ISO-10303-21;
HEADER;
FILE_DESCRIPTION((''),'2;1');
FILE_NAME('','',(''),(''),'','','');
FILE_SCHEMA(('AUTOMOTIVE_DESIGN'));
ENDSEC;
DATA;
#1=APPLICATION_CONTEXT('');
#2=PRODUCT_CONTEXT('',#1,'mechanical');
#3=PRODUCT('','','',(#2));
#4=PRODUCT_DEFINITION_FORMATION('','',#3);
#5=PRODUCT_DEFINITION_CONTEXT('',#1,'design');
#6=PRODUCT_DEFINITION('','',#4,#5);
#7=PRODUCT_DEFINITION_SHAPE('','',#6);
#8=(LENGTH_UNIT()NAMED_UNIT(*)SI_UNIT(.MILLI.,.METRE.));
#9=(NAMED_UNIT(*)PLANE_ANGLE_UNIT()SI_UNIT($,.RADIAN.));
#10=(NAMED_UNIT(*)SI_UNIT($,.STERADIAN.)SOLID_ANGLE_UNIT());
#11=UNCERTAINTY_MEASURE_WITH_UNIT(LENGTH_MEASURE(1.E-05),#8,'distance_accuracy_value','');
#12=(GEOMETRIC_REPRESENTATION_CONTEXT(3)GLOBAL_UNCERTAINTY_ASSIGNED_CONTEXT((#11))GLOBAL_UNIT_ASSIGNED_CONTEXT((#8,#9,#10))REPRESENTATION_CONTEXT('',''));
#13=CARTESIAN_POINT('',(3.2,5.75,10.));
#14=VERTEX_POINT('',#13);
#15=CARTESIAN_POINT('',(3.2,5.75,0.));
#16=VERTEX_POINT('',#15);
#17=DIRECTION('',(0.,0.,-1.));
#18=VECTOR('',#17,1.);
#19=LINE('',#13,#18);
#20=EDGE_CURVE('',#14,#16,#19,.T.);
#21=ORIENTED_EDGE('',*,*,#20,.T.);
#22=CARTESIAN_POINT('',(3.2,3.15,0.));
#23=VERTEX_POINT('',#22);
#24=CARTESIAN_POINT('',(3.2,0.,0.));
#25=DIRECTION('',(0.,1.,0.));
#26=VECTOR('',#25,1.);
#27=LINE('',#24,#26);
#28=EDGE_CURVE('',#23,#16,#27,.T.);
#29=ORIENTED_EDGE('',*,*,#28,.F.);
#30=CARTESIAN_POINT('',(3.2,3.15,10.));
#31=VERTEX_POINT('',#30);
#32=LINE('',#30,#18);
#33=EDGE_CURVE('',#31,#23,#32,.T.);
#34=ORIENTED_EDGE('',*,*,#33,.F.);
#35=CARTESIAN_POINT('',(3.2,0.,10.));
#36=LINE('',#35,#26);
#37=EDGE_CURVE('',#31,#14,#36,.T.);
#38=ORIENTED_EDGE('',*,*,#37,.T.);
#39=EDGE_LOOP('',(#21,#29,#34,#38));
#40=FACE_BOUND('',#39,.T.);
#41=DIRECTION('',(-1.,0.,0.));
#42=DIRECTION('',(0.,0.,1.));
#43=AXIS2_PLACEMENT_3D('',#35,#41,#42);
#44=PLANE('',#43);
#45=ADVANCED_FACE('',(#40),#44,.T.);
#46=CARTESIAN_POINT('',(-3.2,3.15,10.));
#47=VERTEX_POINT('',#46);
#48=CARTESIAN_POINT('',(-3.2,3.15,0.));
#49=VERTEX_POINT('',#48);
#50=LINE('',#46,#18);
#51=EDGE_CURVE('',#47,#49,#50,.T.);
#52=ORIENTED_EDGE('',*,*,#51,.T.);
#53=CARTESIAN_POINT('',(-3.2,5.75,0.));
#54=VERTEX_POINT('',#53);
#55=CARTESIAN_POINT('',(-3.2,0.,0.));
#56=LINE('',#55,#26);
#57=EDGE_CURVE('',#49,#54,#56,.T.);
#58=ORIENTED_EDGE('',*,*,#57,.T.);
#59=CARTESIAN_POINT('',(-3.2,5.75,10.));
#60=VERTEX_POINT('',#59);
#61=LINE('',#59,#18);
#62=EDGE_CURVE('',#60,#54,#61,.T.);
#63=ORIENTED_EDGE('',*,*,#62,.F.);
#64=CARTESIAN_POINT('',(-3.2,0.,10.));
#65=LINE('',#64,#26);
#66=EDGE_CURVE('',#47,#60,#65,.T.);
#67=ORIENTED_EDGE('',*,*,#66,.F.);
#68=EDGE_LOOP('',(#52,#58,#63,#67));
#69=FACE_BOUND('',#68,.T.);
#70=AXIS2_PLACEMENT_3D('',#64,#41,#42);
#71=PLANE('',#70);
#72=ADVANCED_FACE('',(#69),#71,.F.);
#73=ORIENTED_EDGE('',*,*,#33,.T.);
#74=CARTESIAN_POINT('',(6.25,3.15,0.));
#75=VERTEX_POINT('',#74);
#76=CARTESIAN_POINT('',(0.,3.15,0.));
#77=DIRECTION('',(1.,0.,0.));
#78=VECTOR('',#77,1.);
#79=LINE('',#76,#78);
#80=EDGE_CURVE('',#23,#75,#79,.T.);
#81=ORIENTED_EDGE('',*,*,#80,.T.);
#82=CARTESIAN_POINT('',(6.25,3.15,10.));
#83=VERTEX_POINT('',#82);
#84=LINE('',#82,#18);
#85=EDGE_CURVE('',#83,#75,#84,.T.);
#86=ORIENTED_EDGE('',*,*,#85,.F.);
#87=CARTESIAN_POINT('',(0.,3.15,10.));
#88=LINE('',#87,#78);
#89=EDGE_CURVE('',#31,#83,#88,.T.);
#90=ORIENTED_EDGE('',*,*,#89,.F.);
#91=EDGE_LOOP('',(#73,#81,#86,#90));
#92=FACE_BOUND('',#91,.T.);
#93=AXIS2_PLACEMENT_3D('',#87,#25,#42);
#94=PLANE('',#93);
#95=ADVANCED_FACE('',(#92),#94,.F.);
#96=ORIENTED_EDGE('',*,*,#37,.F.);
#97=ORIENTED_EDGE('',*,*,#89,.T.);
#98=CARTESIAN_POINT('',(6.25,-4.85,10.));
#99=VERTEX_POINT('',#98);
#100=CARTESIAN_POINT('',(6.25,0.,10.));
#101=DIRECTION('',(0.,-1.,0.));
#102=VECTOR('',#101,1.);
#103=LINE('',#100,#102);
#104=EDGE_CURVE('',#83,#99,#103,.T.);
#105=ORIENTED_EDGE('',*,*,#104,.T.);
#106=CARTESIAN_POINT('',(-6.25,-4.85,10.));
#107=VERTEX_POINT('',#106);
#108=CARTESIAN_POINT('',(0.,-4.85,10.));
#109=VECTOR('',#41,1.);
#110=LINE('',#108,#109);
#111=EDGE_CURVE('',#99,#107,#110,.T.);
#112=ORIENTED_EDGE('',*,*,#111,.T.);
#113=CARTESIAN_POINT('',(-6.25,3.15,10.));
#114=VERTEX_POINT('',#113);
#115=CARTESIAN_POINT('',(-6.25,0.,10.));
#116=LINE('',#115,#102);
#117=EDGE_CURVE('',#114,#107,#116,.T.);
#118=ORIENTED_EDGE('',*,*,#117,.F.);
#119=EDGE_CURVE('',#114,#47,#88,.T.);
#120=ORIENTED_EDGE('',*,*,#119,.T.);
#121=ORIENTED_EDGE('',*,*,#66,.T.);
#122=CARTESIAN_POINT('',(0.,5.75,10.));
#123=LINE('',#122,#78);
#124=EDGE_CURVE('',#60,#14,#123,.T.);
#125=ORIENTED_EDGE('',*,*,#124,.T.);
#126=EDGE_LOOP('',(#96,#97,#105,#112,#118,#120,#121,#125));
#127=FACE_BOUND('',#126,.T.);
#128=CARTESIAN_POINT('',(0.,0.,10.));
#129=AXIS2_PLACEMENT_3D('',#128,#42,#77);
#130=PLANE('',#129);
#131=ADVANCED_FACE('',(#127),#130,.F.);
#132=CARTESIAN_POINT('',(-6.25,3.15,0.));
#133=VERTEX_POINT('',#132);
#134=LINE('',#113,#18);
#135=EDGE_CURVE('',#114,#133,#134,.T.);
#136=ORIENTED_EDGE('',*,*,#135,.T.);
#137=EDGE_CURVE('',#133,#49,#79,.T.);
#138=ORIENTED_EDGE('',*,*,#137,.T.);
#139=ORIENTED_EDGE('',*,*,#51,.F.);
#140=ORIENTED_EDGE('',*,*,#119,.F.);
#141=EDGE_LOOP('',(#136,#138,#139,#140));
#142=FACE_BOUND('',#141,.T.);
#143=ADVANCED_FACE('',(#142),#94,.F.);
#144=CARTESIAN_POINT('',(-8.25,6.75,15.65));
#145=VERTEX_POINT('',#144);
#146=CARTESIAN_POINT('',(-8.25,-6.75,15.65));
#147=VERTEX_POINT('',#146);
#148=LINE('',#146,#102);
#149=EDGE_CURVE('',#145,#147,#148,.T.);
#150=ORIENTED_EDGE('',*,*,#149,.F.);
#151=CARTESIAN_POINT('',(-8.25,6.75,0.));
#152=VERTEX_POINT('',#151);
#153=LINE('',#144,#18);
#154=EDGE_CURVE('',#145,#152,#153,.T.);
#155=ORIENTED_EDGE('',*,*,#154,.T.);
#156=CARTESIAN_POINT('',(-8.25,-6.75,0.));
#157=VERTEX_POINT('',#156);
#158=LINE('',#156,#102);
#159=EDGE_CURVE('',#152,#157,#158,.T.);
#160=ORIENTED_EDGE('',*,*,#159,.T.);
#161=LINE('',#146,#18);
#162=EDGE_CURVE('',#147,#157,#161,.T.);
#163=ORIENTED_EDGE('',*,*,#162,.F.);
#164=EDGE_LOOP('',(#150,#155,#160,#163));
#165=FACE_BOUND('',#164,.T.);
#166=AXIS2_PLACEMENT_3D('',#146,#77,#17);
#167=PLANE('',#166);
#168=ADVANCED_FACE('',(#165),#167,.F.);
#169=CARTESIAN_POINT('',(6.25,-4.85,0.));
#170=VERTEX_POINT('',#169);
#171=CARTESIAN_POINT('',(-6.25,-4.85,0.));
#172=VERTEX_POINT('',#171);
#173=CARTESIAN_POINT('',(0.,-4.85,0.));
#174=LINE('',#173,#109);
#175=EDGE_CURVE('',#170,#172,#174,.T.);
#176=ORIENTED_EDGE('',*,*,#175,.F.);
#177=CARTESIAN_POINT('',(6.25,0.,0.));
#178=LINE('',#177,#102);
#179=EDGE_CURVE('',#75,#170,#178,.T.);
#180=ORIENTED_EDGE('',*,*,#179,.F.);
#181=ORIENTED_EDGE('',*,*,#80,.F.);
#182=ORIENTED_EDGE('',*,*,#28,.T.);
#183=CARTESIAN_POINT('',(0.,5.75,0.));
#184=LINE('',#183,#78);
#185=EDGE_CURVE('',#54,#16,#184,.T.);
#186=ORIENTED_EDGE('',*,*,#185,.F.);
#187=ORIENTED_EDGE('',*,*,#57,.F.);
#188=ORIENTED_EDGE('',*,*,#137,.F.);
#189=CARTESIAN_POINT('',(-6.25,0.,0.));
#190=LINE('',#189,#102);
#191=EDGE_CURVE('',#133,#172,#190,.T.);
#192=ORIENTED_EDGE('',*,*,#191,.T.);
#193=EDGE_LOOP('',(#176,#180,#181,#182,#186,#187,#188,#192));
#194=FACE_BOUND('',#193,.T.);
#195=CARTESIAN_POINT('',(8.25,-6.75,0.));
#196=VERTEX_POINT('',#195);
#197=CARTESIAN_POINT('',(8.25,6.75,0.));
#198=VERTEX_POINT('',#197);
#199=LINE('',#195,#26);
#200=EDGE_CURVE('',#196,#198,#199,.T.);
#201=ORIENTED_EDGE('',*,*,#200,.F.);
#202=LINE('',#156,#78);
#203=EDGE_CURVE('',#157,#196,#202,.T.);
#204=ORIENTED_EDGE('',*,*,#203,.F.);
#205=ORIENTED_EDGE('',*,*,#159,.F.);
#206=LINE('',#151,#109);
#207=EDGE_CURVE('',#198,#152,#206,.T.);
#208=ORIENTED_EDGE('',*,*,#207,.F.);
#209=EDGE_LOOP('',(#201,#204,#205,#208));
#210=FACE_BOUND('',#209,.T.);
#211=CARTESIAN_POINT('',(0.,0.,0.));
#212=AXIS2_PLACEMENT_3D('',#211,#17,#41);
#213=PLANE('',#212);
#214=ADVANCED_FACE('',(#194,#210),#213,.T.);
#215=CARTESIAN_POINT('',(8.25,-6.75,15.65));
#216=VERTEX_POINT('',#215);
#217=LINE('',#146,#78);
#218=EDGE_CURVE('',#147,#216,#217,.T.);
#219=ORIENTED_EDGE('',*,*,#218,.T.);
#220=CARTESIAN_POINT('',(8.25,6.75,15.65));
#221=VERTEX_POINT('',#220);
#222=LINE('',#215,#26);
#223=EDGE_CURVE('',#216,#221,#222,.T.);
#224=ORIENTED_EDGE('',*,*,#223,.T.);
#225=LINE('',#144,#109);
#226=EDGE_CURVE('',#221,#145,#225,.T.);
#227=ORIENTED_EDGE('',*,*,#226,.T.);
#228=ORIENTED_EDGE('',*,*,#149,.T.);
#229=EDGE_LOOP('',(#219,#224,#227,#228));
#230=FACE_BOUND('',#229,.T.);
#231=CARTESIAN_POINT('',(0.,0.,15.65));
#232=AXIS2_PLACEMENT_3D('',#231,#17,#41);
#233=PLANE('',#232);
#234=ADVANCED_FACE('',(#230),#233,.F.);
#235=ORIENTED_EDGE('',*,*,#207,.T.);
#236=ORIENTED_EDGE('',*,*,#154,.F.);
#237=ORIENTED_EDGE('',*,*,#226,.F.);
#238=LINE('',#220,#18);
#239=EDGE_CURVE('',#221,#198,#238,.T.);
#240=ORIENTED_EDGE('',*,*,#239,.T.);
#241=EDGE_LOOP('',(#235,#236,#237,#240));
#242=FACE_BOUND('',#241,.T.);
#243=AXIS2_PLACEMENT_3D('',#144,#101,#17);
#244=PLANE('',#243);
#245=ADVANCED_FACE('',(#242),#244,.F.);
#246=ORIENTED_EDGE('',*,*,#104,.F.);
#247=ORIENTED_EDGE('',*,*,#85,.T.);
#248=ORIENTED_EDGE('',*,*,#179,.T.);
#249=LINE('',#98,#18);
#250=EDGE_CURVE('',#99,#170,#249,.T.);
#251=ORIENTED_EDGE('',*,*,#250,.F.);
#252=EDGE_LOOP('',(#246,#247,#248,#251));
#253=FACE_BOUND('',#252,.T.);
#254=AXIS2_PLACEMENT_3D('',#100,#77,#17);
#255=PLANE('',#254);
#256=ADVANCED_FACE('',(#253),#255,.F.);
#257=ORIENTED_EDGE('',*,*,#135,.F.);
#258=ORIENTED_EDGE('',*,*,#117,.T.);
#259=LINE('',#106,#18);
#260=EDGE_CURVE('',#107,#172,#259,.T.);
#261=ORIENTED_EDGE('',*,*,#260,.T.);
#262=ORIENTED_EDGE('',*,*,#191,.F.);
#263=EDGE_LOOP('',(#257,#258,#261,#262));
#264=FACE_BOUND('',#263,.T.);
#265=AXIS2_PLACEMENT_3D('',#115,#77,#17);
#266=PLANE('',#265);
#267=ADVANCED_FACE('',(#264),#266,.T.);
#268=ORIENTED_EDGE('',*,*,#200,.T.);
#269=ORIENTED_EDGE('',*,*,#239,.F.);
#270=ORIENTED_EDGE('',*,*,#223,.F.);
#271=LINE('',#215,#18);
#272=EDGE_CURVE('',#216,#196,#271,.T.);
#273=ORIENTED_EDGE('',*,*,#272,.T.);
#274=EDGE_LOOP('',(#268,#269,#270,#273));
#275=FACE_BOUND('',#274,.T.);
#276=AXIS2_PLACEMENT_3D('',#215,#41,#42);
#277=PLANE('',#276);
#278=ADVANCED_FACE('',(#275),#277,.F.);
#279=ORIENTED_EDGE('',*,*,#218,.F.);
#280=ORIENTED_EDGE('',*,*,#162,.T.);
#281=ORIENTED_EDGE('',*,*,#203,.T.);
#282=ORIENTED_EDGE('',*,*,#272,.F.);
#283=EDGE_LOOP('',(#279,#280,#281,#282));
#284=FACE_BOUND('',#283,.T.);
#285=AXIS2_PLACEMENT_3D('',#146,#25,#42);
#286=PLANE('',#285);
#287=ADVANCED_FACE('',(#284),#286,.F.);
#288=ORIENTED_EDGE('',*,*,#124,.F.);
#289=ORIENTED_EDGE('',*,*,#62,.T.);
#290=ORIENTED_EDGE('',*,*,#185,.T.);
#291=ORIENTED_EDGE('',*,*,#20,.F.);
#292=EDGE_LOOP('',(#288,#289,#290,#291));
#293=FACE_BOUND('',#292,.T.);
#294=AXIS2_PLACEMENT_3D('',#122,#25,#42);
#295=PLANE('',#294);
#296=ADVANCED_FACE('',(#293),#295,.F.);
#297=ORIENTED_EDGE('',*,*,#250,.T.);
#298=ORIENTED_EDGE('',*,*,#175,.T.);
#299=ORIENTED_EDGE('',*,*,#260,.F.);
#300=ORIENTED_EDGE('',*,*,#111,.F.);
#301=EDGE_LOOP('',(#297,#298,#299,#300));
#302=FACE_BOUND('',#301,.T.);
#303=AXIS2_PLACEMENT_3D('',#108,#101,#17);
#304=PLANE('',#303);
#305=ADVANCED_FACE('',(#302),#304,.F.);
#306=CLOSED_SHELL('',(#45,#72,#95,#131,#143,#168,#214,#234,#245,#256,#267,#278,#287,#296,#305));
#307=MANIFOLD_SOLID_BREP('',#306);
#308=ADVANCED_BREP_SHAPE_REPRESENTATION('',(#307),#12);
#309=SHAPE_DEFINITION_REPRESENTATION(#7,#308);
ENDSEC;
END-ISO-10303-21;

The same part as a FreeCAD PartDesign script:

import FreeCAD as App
import Part
import Sketcher
from FreeCAD import Vector

doc = App.newDocument("Part")
body = doc.addObject("PartDesign::Body", "Body")

# Sketch on XY plane
sketch1 = body.newObject("Sketcher::SketchObject", "Sketch")
sketch1.AttachmentSupport = (doc.getObject("XY_Plane"), [""])
sketch1.MapMode = "FlatFace"
sketch1.addGeometry(Part.LineSegment(Vector(-8.25, 6.75, 0), Vector(-8.25, -6.75, 0)), False)
sketch1.addGeometry(Part.LineSegment(Vector(-8.25, -6.75, 0), Vector(8.25, -6.75, 0)), False)
sketch1.addGeometry(Part.LineSegment(Vector(8.25, -6.75, 0), Vector(8.25, 6.75, 0)), False)
sketch1.addGeometry(Part.LineSegment(Vector(8.25, 6.75, 0), Vector(-8.25, 6.75, 0)), False)
sketch1.addConstraint(Sketcher.Constraint("Coincident", 0, 2, 1, 1))
sketch1.addConstraint(Sketcher.Constraint("Coincident", 1, 2, 2, 1))
sketch1.addConstraint(Sketcher.Constraint("Coincident", 2, 2, 3, 1))
sketch1.addConstraint(Sketcher.Constraint("Coincident", 3, 2, 0, 1))
sketch1.addConstraint(Sketcher.Constraint("Vertical", 0))
sketch1.addConstraint(Sketcher.Constraint("Horizontal", 1))
sketch1.addConstraint(Sketcher.Constraint("Vertical", 2))
sketch1.addConstraint(Sketcher.Constraint("Horizontal", 3))
sketch1.addConstraint(Sketcher.Constraint("Symmetric", 0, 2, 2, 2, -1, 1))
sketch1.addConstraint(Sketcher.Constraint("DistanceX", 1, 1, 1, 2, 16.5))
sketch1.addConstraint(Sketcher.Constraint("DistanceY", 0, 2, 0, 1, 13.5))
pad1 = body.newObject("PartDesign::Pad", "Pad")
pad1.Profile = sketch1
pad1.Length = 15.65

# Sketch on XY plane
sketch2 = body.newObject("Sketcher::SketchObject", "Sketch001")
sketch2.AttachmentSupport = (doc.getObject("XY_Plane"), [""])
sketch2.MapMode = "FlatFace"
sketch2.addGeometry(Part.LineSegment(Vector(6.25, -4.85, 0), Vector(6.25, 3.15, 0)), False)
sketch2.addGeometry(Part.LineSegment(Vector(6.25, 3.15, 0), Vector(3.2, 3.15, 0)), False)
sketch2.addGeometry(Part.LineSegment(Vector(3.2, 3.15, 0), Vector(3.2, 5.75, 0)), False)
sketch2.addGeometry(Part.LineSegment(Vector(3.2, 5.75, 0), Vector(-3.2, 5.75, 0)), False)
sketch2.addGeometry(Part.LineSegment(Vector(-3.2, 5.75, 0), Vector(-3.2, 3.15, 0)), False)
sketch2.addGeometry(Part.LineSegment(Vector(-3.2, 3.15, 0), Vector(-6.25, 3.15, 0)), False)
sketch2.addGeometry(Part.LineSegment(Vector(-6.25, 3.15, 0), Vector(-6.25, -4.85, 0)), False)
sketch2.addGeometry(Part.LineSegment(Vector(-6.25, -4.85, 0), Vector(6.25, -4.85, 0)), False)
sketch2.addConstraint(Sketcher.Constraint("Coincident", 0, 2, 1, 1))
sketch2.addConstraint(Sketcher.Constraint("Coincident", 1, 2, 2, 1))
sketch2.addConstraint(Sketcher.Constraint("Coincident", 2, 2, 3, 1))
sketch2.addConstraint(Sketcher.Constraint("Coincident", 3, 2, 4, 1))
sketch2.addConstraint(Sketcher.Constraint("Coincident", 4, 2, 5, 1))
sketch2.addConstraint(Sketcher.Constraint("Coincident", 5, 2, 6, 1))
sketch2.addConstraint(Sketcher.Constraint("Coincident", 6, 2, 7, 1))
sketch2.addConstraint(Sketcher.Constraint("Coincident", 7, 2, 0, 1))
sketch2.addConstraint(Sketcher.Constraint("Vertical", 0))
sketch2.addConstraint(Sketcher.Constraint("Horizontal", 1))
sketch2.addConstraint(Sketcher.Constraint("Vertical", 2))
sketch2.addConstraint(Sketcher.Constraint("Horizontal", 3))
sketch2.addConstraint(Sketcher.Constraint("Vertical", 4))
sketch2.addConstraint(Sketcher.Constraint("Horizontal", 5))
sketch2.addConstraint(Sketcher.Constraint("Vertical", 6))
sketch2.addConstraint(Sketcher.Constraint("Horizontal", 7))
sketch2.addConstraint(Sketcher.Constraint("Symmetric", 1, 2, 4, 2, -2))
sketch2.addConstraint(Sketcher.Constraint("Equal", 1, 5))
sketch2.addConstraint(Sketcher.Constraint("DistanceY", 0, 1, 0, 2, 8.0))
sketch2.addConstraint(Sketcher.Constraint("DistanceX", 3, 2, 3, 1, 6.4))
sketch2.addConstraint(Sketcher.Constraint("DistanceX", 7, 1, 7, 2, 12.5))
sketch2.addConstraint(Sketcher.Constraint("DistanceY", 2, 1, 2, 2, 2.6))
sketch2.addConstraint(Sketcher.Constraint("DistanceY", -1, 1, 0, 2, 3.15))
pocket1 = body.newObject("PartDesign::Pocket", "Pocket")
pocket1.Profile = sketch2
pocket1.Length = 10
pocket1.Reversed = True

doc.recompute()
